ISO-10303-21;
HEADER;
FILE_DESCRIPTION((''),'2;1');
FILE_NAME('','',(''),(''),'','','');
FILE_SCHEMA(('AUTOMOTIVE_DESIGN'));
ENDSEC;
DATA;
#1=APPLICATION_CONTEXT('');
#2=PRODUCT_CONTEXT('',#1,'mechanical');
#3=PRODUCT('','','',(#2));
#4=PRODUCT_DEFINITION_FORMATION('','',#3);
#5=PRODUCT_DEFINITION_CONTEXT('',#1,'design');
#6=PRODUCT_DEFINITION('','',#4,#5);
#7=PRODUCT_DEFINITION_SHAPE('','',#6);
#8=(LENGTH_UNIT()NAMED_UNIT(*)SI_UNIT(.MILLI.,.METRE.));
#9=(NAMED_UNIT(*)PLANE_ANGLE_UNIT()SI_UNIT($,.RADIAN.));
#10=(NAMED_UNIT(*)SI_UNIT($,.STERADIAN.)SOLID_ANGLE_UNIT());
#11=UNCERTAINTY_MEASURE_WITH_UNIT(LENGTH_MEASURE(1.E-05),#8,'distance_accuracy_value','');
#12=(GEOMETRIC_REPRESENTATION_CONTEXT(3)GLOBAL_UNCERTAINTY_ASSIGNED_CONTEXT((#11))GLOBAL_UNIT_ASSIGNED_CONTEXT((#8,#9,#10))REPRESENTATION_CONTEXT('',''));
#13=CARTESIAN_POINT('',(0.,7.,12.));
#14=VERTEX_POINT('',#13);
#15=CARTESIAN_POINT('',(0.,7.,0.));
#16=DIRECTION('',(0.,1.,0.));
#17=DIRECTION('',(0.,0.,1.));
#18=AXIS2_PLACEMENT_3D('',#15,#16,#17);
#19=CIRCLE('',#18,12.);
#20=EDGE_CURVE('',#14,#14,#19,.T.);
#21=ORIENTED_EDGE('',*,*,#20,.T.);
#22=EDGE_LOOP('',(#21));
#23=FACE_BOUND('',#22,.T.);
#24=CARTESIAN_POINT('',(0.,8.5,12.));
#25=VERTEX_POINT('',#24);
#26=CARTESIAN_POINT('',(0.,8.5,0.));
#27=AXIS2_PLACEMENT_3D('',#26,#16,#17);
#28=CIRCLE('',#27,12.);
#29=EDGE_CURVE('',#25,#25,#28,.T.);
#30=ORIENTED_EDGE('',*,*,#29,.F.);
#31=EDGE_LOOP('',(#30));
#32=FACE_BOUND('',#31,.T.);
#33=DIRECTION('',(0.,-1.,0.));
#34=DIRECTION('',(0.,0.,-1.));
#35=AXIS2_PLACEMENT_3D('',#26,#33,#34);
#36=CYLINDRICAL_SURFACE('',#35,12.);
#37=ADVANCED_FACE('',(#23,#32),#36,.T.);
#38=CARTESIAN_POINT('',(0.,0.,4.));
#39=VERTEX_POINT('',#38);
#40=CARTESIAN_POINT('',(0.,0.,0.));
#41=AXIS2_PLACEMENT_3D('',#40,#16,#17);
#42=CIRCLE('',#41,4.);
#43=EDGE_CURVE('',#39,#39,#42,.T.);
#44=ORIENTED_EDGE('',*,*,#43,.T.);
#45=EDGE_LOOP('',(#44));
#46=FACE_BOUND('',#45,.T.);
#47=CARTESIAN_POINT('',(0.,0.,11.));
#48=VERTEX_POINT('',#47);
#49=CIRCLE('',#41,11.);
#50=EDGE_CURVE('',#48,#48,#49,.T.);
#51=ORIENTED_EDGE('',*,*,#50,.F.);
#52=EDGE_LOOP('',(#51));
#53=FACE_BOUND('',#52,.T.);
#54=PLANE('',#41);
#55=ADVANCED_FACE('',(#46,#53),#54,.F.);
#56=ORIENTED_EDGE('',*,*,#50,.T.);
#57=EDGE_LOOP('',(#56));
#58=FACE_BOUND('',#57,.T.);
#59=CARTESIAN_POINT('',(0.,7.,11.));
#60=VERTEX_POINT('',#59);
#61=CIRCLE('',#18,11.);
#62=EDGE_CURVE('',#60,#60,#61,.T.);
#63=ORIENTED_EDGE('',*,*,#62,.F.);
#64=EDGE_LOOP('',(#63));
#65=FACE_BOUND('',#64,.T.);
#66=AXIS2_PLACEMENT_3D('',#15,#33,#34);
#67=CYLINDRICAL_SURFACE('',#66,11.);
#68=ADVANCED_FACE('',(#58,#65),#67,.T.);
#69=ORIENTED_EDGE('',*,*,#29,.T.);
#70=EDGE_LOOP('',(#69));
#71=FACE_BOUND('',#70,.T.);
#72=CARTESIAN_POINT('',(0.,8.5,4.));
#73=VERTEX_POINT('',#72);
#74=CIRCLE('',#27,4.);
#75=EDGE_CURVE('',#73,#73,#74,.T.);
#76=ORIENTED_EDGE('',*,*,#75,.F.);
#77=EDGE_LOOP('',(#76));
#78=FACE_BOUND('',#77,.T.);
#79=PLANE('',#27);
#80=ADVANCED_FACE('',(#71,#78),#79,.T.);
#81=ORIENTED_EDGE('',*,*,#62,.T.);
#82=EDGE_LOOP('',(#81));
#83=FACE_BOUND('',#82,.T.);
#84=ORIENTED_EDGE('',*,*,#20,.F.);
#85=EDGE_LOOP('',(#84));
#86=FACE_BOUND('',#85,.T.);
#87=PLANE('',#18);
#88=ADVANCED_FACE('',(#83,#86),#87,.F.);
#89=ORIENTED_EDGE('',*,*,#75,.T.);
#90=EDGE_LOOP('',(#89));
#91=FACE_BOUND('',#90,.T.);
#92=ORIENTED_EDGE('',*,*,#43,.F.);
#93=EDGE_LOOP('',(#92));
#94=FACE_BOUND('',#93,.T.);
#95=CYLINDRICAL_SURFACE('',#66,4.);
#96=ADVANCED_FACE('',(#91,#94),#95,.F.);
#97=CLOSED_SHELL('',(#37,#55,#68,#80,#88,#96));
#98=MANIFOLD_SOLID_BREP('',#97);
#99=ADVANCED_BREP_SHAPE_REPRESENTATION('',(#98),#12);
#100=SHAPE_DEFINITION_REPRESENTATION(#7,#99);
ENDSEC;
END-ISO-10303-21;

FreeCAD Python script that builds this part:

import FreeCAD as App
import Part
import Sketcher
from FreeCAD import Vector
Q = App.Units.Quantity

doc = App.newDocument("Part")
body = doc.addObject("PartDesign::Body", "Body")

sketch1 = doc.addObject("Sketcher::SketchObject", "Sketch")
body.addObject(sketch1)
sketch1.AttachmentSupport = (doc.XZ_Plane, [""])
sketch1.MapMode = "FlatFace"
sketch1.addGeometry(Part.Circle(Vector(0, 0, 0), Vector(0, 0, 1), 11), False)
sketch1.addGeometry(Part.Circle(Vector(0, 0, 0), Vector(0, 0, 1), 4), False)
sketch1.addConstraint(Sketcher.Constraint("Coincident", 0, 3, -1, 1))
sketch1.addConstraint(Sketcher.Constraint("Coincident", 1, 3, -1, 1))
sketch1.addConstraint(Sketcher.Constraint("Diameter", 0, Q("22 mm")))
sketch1.addConstraint(Sketcher.Constraint("Diameter", 1, Q("8 mm")))
pad1 = doc.addObject("PartDesign::Pad", "Pad")
body.addObject(pad1)
pad1.Profile = sketch1
pad1.Length = 7
pad1.Reversed = True

sketch2 = doc.addObject("Sketcher::SketchObject", "Sketch001")
body.addObject(sketch2)
sketch2.AttachmentSupport = (doc.XZ_Plane, [""])
sketch2.MapMode = "FlatFace"
sketch2.AttachmentOffset = App.Placement(Vector(0, 0, -7), App.Rotation())
sketch2.addGeometry(Part.Circle(Vector(0, 0, 0), Vector(0, 0, 1), 12), False)
sketch2.addGeometry(Part.Circle(Vector(0, 0, 0), Vector(0, 0, 1), 4), False)
sketch2.addConstraint(Sketcher.Constraint("Coincident", 0, 3, -1, 1))
sketch2.addConstraint(Sketcher.Constraint("Coincident", 1, 3, -1, 1))
sketch2.addConstraint(Sketcher.Constraint("Diameter", 0, Q("24 mm")))
sketch2.addConstraint(Sketcher.Constraint("Diameter", 1, Q("8 mm")))
pad2 = doc.addObject("PartDesign::Pad", "Pad001")
body.addObject(pad2)
pad2.Profile = sketch2
pad2.Length = 1.5
pad2.Reversed = True

doc.recompute()
